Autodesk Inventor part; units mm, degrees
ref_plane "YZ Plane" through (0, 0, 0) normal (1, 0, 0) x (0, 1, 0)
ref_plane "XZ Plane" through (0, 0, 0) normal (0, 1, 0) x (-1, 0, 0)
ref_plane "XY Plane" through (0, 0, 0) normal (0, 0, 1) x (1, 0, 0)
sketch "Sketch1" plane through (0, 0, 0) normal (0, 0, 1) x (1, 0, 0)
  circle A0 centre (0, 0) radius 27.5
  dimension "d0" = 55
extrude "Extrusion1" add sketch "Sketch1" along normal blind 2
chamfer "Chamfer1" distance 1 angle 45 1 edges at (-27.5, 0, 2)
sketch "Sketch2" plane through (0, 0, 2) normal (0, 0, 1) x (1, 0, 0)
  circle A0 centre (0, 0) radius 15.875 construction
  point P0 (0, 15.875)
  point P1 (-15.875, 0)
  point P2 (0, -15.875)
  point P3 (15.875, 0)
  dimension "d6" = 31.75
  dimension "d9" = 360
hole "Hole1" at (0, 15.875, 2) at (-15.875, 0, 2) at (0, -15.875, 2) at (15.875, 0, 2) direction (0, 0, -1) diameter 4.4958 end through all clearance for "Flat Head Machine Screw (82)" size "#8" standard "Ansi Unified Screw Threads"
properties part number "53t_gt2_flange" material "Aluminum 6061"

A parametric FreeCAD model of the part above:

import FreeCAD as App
import Part
import Sketcher


def edges_at(feature, points):
    """Names of the edges that pass closest to the given points."""
    edges = feature.Shape.Edges
    near = lambda p: min(range(len(edges)), key=lambda i: edges[i].distToShape(Part.Vertex(*p))[0])
    return sorted({f"Edge{near(p) + 1}" for p in points})

doc = App.newDocument("Part")
body = doc.addObject("PartDesign::Body", "Body")

# Sketch on XY plane
sketch1 = body.newObject("Sketcher::SketchObject", "Sketch")
sketch1.AttachmentSupport = (doc.getObject("XY_Plane"), [""])
sketch1.MapMode = "FlatFace"
sketch1.addGeometry(Part.Circle(App.Vector(0, 0, 0), App.Vector(0, 0, 1), 28), False)
sketch1.addConstraint([
    Sketcher.Constraint("Coincident", 0, 3, -1, 1),
    Sketcher.Constraint("Diameter", 0, 55.0),
])
pad1 = body.newObject("PartDesign::Pad", "Pad")
pad1.Profile = sketch1
pad1.Length = 2
doc.recompute()

chamfer = body.newObject("PartDesign::Chamfer", "Chamfer")
chamfer.Base = (pad1, edges_at(pad1, [(-27.5, 0, 2)]))
chamfer.Size = 1

# Sketch on XY plane
sketch2 = body.newObject("Sketcher::SketchObject", "Sketch001")
sketch2.AttachmentSupport = (doc.getObject("XY_Plane"), [""])
sketch2.MapMode = "FlatFace"
sketch2.AttachmentOffset = App.Placement(App.Vector(0, 0, 2), App.Rotation())
sketch2.addGeometry([
    Part.Circle(App.Vector(0, 15.9, 0), App.Vector(0, 0, 1), 2.2),
    Part.Circle(App.Vector(-15.9, 0, 0), App.Vector(0, 0, 1), 2.2),
    Part.Circle(App.Vector(0, -15.9, 0), App.Vector(0, 0, 1), 2.2),
    Part.Circle(App.Vector(15.9, 0, 0), App.Vector(0, 0, 1), 2.2),
], False)
sketch2.addConstraint([
    Sketcher.Constraint("Equal", 0, 1),
    Sketcher.Constraint("Equal", 1, 2),
    Sketcher.Constraint("Equal", 2, 3),
    Sketcher.Constraint("Symmetric", 0, 3, 2, 3, -1, 1),
    Sketcher.Constraint("Symmetric", 1, 3, 3, 3, -1, 1),
    Sketcher.Constraint("PointOnObject", 0, 3, -2),
    Sketcher.Constraint("PointOnObject", 1, 3, -1),
    Sketcher.Constraint("Diameter", 0, 4.4958),
    Sketcher.Constraint("DistanceY", 2, 3, 0, 3, 31.75),
    Sketcher.Constraint("DistanceX", 1, 3, 3, 3, 31.75),
])
doc.recompute()
hole = body.newObject("PartDesign::Hole", "Hole")
hole.Profile = sketch2
hole.ThreadType = "None"
hole.Diameter = 4.4958
hole.DepthType = "ThroughAll"

doc.recompute()
